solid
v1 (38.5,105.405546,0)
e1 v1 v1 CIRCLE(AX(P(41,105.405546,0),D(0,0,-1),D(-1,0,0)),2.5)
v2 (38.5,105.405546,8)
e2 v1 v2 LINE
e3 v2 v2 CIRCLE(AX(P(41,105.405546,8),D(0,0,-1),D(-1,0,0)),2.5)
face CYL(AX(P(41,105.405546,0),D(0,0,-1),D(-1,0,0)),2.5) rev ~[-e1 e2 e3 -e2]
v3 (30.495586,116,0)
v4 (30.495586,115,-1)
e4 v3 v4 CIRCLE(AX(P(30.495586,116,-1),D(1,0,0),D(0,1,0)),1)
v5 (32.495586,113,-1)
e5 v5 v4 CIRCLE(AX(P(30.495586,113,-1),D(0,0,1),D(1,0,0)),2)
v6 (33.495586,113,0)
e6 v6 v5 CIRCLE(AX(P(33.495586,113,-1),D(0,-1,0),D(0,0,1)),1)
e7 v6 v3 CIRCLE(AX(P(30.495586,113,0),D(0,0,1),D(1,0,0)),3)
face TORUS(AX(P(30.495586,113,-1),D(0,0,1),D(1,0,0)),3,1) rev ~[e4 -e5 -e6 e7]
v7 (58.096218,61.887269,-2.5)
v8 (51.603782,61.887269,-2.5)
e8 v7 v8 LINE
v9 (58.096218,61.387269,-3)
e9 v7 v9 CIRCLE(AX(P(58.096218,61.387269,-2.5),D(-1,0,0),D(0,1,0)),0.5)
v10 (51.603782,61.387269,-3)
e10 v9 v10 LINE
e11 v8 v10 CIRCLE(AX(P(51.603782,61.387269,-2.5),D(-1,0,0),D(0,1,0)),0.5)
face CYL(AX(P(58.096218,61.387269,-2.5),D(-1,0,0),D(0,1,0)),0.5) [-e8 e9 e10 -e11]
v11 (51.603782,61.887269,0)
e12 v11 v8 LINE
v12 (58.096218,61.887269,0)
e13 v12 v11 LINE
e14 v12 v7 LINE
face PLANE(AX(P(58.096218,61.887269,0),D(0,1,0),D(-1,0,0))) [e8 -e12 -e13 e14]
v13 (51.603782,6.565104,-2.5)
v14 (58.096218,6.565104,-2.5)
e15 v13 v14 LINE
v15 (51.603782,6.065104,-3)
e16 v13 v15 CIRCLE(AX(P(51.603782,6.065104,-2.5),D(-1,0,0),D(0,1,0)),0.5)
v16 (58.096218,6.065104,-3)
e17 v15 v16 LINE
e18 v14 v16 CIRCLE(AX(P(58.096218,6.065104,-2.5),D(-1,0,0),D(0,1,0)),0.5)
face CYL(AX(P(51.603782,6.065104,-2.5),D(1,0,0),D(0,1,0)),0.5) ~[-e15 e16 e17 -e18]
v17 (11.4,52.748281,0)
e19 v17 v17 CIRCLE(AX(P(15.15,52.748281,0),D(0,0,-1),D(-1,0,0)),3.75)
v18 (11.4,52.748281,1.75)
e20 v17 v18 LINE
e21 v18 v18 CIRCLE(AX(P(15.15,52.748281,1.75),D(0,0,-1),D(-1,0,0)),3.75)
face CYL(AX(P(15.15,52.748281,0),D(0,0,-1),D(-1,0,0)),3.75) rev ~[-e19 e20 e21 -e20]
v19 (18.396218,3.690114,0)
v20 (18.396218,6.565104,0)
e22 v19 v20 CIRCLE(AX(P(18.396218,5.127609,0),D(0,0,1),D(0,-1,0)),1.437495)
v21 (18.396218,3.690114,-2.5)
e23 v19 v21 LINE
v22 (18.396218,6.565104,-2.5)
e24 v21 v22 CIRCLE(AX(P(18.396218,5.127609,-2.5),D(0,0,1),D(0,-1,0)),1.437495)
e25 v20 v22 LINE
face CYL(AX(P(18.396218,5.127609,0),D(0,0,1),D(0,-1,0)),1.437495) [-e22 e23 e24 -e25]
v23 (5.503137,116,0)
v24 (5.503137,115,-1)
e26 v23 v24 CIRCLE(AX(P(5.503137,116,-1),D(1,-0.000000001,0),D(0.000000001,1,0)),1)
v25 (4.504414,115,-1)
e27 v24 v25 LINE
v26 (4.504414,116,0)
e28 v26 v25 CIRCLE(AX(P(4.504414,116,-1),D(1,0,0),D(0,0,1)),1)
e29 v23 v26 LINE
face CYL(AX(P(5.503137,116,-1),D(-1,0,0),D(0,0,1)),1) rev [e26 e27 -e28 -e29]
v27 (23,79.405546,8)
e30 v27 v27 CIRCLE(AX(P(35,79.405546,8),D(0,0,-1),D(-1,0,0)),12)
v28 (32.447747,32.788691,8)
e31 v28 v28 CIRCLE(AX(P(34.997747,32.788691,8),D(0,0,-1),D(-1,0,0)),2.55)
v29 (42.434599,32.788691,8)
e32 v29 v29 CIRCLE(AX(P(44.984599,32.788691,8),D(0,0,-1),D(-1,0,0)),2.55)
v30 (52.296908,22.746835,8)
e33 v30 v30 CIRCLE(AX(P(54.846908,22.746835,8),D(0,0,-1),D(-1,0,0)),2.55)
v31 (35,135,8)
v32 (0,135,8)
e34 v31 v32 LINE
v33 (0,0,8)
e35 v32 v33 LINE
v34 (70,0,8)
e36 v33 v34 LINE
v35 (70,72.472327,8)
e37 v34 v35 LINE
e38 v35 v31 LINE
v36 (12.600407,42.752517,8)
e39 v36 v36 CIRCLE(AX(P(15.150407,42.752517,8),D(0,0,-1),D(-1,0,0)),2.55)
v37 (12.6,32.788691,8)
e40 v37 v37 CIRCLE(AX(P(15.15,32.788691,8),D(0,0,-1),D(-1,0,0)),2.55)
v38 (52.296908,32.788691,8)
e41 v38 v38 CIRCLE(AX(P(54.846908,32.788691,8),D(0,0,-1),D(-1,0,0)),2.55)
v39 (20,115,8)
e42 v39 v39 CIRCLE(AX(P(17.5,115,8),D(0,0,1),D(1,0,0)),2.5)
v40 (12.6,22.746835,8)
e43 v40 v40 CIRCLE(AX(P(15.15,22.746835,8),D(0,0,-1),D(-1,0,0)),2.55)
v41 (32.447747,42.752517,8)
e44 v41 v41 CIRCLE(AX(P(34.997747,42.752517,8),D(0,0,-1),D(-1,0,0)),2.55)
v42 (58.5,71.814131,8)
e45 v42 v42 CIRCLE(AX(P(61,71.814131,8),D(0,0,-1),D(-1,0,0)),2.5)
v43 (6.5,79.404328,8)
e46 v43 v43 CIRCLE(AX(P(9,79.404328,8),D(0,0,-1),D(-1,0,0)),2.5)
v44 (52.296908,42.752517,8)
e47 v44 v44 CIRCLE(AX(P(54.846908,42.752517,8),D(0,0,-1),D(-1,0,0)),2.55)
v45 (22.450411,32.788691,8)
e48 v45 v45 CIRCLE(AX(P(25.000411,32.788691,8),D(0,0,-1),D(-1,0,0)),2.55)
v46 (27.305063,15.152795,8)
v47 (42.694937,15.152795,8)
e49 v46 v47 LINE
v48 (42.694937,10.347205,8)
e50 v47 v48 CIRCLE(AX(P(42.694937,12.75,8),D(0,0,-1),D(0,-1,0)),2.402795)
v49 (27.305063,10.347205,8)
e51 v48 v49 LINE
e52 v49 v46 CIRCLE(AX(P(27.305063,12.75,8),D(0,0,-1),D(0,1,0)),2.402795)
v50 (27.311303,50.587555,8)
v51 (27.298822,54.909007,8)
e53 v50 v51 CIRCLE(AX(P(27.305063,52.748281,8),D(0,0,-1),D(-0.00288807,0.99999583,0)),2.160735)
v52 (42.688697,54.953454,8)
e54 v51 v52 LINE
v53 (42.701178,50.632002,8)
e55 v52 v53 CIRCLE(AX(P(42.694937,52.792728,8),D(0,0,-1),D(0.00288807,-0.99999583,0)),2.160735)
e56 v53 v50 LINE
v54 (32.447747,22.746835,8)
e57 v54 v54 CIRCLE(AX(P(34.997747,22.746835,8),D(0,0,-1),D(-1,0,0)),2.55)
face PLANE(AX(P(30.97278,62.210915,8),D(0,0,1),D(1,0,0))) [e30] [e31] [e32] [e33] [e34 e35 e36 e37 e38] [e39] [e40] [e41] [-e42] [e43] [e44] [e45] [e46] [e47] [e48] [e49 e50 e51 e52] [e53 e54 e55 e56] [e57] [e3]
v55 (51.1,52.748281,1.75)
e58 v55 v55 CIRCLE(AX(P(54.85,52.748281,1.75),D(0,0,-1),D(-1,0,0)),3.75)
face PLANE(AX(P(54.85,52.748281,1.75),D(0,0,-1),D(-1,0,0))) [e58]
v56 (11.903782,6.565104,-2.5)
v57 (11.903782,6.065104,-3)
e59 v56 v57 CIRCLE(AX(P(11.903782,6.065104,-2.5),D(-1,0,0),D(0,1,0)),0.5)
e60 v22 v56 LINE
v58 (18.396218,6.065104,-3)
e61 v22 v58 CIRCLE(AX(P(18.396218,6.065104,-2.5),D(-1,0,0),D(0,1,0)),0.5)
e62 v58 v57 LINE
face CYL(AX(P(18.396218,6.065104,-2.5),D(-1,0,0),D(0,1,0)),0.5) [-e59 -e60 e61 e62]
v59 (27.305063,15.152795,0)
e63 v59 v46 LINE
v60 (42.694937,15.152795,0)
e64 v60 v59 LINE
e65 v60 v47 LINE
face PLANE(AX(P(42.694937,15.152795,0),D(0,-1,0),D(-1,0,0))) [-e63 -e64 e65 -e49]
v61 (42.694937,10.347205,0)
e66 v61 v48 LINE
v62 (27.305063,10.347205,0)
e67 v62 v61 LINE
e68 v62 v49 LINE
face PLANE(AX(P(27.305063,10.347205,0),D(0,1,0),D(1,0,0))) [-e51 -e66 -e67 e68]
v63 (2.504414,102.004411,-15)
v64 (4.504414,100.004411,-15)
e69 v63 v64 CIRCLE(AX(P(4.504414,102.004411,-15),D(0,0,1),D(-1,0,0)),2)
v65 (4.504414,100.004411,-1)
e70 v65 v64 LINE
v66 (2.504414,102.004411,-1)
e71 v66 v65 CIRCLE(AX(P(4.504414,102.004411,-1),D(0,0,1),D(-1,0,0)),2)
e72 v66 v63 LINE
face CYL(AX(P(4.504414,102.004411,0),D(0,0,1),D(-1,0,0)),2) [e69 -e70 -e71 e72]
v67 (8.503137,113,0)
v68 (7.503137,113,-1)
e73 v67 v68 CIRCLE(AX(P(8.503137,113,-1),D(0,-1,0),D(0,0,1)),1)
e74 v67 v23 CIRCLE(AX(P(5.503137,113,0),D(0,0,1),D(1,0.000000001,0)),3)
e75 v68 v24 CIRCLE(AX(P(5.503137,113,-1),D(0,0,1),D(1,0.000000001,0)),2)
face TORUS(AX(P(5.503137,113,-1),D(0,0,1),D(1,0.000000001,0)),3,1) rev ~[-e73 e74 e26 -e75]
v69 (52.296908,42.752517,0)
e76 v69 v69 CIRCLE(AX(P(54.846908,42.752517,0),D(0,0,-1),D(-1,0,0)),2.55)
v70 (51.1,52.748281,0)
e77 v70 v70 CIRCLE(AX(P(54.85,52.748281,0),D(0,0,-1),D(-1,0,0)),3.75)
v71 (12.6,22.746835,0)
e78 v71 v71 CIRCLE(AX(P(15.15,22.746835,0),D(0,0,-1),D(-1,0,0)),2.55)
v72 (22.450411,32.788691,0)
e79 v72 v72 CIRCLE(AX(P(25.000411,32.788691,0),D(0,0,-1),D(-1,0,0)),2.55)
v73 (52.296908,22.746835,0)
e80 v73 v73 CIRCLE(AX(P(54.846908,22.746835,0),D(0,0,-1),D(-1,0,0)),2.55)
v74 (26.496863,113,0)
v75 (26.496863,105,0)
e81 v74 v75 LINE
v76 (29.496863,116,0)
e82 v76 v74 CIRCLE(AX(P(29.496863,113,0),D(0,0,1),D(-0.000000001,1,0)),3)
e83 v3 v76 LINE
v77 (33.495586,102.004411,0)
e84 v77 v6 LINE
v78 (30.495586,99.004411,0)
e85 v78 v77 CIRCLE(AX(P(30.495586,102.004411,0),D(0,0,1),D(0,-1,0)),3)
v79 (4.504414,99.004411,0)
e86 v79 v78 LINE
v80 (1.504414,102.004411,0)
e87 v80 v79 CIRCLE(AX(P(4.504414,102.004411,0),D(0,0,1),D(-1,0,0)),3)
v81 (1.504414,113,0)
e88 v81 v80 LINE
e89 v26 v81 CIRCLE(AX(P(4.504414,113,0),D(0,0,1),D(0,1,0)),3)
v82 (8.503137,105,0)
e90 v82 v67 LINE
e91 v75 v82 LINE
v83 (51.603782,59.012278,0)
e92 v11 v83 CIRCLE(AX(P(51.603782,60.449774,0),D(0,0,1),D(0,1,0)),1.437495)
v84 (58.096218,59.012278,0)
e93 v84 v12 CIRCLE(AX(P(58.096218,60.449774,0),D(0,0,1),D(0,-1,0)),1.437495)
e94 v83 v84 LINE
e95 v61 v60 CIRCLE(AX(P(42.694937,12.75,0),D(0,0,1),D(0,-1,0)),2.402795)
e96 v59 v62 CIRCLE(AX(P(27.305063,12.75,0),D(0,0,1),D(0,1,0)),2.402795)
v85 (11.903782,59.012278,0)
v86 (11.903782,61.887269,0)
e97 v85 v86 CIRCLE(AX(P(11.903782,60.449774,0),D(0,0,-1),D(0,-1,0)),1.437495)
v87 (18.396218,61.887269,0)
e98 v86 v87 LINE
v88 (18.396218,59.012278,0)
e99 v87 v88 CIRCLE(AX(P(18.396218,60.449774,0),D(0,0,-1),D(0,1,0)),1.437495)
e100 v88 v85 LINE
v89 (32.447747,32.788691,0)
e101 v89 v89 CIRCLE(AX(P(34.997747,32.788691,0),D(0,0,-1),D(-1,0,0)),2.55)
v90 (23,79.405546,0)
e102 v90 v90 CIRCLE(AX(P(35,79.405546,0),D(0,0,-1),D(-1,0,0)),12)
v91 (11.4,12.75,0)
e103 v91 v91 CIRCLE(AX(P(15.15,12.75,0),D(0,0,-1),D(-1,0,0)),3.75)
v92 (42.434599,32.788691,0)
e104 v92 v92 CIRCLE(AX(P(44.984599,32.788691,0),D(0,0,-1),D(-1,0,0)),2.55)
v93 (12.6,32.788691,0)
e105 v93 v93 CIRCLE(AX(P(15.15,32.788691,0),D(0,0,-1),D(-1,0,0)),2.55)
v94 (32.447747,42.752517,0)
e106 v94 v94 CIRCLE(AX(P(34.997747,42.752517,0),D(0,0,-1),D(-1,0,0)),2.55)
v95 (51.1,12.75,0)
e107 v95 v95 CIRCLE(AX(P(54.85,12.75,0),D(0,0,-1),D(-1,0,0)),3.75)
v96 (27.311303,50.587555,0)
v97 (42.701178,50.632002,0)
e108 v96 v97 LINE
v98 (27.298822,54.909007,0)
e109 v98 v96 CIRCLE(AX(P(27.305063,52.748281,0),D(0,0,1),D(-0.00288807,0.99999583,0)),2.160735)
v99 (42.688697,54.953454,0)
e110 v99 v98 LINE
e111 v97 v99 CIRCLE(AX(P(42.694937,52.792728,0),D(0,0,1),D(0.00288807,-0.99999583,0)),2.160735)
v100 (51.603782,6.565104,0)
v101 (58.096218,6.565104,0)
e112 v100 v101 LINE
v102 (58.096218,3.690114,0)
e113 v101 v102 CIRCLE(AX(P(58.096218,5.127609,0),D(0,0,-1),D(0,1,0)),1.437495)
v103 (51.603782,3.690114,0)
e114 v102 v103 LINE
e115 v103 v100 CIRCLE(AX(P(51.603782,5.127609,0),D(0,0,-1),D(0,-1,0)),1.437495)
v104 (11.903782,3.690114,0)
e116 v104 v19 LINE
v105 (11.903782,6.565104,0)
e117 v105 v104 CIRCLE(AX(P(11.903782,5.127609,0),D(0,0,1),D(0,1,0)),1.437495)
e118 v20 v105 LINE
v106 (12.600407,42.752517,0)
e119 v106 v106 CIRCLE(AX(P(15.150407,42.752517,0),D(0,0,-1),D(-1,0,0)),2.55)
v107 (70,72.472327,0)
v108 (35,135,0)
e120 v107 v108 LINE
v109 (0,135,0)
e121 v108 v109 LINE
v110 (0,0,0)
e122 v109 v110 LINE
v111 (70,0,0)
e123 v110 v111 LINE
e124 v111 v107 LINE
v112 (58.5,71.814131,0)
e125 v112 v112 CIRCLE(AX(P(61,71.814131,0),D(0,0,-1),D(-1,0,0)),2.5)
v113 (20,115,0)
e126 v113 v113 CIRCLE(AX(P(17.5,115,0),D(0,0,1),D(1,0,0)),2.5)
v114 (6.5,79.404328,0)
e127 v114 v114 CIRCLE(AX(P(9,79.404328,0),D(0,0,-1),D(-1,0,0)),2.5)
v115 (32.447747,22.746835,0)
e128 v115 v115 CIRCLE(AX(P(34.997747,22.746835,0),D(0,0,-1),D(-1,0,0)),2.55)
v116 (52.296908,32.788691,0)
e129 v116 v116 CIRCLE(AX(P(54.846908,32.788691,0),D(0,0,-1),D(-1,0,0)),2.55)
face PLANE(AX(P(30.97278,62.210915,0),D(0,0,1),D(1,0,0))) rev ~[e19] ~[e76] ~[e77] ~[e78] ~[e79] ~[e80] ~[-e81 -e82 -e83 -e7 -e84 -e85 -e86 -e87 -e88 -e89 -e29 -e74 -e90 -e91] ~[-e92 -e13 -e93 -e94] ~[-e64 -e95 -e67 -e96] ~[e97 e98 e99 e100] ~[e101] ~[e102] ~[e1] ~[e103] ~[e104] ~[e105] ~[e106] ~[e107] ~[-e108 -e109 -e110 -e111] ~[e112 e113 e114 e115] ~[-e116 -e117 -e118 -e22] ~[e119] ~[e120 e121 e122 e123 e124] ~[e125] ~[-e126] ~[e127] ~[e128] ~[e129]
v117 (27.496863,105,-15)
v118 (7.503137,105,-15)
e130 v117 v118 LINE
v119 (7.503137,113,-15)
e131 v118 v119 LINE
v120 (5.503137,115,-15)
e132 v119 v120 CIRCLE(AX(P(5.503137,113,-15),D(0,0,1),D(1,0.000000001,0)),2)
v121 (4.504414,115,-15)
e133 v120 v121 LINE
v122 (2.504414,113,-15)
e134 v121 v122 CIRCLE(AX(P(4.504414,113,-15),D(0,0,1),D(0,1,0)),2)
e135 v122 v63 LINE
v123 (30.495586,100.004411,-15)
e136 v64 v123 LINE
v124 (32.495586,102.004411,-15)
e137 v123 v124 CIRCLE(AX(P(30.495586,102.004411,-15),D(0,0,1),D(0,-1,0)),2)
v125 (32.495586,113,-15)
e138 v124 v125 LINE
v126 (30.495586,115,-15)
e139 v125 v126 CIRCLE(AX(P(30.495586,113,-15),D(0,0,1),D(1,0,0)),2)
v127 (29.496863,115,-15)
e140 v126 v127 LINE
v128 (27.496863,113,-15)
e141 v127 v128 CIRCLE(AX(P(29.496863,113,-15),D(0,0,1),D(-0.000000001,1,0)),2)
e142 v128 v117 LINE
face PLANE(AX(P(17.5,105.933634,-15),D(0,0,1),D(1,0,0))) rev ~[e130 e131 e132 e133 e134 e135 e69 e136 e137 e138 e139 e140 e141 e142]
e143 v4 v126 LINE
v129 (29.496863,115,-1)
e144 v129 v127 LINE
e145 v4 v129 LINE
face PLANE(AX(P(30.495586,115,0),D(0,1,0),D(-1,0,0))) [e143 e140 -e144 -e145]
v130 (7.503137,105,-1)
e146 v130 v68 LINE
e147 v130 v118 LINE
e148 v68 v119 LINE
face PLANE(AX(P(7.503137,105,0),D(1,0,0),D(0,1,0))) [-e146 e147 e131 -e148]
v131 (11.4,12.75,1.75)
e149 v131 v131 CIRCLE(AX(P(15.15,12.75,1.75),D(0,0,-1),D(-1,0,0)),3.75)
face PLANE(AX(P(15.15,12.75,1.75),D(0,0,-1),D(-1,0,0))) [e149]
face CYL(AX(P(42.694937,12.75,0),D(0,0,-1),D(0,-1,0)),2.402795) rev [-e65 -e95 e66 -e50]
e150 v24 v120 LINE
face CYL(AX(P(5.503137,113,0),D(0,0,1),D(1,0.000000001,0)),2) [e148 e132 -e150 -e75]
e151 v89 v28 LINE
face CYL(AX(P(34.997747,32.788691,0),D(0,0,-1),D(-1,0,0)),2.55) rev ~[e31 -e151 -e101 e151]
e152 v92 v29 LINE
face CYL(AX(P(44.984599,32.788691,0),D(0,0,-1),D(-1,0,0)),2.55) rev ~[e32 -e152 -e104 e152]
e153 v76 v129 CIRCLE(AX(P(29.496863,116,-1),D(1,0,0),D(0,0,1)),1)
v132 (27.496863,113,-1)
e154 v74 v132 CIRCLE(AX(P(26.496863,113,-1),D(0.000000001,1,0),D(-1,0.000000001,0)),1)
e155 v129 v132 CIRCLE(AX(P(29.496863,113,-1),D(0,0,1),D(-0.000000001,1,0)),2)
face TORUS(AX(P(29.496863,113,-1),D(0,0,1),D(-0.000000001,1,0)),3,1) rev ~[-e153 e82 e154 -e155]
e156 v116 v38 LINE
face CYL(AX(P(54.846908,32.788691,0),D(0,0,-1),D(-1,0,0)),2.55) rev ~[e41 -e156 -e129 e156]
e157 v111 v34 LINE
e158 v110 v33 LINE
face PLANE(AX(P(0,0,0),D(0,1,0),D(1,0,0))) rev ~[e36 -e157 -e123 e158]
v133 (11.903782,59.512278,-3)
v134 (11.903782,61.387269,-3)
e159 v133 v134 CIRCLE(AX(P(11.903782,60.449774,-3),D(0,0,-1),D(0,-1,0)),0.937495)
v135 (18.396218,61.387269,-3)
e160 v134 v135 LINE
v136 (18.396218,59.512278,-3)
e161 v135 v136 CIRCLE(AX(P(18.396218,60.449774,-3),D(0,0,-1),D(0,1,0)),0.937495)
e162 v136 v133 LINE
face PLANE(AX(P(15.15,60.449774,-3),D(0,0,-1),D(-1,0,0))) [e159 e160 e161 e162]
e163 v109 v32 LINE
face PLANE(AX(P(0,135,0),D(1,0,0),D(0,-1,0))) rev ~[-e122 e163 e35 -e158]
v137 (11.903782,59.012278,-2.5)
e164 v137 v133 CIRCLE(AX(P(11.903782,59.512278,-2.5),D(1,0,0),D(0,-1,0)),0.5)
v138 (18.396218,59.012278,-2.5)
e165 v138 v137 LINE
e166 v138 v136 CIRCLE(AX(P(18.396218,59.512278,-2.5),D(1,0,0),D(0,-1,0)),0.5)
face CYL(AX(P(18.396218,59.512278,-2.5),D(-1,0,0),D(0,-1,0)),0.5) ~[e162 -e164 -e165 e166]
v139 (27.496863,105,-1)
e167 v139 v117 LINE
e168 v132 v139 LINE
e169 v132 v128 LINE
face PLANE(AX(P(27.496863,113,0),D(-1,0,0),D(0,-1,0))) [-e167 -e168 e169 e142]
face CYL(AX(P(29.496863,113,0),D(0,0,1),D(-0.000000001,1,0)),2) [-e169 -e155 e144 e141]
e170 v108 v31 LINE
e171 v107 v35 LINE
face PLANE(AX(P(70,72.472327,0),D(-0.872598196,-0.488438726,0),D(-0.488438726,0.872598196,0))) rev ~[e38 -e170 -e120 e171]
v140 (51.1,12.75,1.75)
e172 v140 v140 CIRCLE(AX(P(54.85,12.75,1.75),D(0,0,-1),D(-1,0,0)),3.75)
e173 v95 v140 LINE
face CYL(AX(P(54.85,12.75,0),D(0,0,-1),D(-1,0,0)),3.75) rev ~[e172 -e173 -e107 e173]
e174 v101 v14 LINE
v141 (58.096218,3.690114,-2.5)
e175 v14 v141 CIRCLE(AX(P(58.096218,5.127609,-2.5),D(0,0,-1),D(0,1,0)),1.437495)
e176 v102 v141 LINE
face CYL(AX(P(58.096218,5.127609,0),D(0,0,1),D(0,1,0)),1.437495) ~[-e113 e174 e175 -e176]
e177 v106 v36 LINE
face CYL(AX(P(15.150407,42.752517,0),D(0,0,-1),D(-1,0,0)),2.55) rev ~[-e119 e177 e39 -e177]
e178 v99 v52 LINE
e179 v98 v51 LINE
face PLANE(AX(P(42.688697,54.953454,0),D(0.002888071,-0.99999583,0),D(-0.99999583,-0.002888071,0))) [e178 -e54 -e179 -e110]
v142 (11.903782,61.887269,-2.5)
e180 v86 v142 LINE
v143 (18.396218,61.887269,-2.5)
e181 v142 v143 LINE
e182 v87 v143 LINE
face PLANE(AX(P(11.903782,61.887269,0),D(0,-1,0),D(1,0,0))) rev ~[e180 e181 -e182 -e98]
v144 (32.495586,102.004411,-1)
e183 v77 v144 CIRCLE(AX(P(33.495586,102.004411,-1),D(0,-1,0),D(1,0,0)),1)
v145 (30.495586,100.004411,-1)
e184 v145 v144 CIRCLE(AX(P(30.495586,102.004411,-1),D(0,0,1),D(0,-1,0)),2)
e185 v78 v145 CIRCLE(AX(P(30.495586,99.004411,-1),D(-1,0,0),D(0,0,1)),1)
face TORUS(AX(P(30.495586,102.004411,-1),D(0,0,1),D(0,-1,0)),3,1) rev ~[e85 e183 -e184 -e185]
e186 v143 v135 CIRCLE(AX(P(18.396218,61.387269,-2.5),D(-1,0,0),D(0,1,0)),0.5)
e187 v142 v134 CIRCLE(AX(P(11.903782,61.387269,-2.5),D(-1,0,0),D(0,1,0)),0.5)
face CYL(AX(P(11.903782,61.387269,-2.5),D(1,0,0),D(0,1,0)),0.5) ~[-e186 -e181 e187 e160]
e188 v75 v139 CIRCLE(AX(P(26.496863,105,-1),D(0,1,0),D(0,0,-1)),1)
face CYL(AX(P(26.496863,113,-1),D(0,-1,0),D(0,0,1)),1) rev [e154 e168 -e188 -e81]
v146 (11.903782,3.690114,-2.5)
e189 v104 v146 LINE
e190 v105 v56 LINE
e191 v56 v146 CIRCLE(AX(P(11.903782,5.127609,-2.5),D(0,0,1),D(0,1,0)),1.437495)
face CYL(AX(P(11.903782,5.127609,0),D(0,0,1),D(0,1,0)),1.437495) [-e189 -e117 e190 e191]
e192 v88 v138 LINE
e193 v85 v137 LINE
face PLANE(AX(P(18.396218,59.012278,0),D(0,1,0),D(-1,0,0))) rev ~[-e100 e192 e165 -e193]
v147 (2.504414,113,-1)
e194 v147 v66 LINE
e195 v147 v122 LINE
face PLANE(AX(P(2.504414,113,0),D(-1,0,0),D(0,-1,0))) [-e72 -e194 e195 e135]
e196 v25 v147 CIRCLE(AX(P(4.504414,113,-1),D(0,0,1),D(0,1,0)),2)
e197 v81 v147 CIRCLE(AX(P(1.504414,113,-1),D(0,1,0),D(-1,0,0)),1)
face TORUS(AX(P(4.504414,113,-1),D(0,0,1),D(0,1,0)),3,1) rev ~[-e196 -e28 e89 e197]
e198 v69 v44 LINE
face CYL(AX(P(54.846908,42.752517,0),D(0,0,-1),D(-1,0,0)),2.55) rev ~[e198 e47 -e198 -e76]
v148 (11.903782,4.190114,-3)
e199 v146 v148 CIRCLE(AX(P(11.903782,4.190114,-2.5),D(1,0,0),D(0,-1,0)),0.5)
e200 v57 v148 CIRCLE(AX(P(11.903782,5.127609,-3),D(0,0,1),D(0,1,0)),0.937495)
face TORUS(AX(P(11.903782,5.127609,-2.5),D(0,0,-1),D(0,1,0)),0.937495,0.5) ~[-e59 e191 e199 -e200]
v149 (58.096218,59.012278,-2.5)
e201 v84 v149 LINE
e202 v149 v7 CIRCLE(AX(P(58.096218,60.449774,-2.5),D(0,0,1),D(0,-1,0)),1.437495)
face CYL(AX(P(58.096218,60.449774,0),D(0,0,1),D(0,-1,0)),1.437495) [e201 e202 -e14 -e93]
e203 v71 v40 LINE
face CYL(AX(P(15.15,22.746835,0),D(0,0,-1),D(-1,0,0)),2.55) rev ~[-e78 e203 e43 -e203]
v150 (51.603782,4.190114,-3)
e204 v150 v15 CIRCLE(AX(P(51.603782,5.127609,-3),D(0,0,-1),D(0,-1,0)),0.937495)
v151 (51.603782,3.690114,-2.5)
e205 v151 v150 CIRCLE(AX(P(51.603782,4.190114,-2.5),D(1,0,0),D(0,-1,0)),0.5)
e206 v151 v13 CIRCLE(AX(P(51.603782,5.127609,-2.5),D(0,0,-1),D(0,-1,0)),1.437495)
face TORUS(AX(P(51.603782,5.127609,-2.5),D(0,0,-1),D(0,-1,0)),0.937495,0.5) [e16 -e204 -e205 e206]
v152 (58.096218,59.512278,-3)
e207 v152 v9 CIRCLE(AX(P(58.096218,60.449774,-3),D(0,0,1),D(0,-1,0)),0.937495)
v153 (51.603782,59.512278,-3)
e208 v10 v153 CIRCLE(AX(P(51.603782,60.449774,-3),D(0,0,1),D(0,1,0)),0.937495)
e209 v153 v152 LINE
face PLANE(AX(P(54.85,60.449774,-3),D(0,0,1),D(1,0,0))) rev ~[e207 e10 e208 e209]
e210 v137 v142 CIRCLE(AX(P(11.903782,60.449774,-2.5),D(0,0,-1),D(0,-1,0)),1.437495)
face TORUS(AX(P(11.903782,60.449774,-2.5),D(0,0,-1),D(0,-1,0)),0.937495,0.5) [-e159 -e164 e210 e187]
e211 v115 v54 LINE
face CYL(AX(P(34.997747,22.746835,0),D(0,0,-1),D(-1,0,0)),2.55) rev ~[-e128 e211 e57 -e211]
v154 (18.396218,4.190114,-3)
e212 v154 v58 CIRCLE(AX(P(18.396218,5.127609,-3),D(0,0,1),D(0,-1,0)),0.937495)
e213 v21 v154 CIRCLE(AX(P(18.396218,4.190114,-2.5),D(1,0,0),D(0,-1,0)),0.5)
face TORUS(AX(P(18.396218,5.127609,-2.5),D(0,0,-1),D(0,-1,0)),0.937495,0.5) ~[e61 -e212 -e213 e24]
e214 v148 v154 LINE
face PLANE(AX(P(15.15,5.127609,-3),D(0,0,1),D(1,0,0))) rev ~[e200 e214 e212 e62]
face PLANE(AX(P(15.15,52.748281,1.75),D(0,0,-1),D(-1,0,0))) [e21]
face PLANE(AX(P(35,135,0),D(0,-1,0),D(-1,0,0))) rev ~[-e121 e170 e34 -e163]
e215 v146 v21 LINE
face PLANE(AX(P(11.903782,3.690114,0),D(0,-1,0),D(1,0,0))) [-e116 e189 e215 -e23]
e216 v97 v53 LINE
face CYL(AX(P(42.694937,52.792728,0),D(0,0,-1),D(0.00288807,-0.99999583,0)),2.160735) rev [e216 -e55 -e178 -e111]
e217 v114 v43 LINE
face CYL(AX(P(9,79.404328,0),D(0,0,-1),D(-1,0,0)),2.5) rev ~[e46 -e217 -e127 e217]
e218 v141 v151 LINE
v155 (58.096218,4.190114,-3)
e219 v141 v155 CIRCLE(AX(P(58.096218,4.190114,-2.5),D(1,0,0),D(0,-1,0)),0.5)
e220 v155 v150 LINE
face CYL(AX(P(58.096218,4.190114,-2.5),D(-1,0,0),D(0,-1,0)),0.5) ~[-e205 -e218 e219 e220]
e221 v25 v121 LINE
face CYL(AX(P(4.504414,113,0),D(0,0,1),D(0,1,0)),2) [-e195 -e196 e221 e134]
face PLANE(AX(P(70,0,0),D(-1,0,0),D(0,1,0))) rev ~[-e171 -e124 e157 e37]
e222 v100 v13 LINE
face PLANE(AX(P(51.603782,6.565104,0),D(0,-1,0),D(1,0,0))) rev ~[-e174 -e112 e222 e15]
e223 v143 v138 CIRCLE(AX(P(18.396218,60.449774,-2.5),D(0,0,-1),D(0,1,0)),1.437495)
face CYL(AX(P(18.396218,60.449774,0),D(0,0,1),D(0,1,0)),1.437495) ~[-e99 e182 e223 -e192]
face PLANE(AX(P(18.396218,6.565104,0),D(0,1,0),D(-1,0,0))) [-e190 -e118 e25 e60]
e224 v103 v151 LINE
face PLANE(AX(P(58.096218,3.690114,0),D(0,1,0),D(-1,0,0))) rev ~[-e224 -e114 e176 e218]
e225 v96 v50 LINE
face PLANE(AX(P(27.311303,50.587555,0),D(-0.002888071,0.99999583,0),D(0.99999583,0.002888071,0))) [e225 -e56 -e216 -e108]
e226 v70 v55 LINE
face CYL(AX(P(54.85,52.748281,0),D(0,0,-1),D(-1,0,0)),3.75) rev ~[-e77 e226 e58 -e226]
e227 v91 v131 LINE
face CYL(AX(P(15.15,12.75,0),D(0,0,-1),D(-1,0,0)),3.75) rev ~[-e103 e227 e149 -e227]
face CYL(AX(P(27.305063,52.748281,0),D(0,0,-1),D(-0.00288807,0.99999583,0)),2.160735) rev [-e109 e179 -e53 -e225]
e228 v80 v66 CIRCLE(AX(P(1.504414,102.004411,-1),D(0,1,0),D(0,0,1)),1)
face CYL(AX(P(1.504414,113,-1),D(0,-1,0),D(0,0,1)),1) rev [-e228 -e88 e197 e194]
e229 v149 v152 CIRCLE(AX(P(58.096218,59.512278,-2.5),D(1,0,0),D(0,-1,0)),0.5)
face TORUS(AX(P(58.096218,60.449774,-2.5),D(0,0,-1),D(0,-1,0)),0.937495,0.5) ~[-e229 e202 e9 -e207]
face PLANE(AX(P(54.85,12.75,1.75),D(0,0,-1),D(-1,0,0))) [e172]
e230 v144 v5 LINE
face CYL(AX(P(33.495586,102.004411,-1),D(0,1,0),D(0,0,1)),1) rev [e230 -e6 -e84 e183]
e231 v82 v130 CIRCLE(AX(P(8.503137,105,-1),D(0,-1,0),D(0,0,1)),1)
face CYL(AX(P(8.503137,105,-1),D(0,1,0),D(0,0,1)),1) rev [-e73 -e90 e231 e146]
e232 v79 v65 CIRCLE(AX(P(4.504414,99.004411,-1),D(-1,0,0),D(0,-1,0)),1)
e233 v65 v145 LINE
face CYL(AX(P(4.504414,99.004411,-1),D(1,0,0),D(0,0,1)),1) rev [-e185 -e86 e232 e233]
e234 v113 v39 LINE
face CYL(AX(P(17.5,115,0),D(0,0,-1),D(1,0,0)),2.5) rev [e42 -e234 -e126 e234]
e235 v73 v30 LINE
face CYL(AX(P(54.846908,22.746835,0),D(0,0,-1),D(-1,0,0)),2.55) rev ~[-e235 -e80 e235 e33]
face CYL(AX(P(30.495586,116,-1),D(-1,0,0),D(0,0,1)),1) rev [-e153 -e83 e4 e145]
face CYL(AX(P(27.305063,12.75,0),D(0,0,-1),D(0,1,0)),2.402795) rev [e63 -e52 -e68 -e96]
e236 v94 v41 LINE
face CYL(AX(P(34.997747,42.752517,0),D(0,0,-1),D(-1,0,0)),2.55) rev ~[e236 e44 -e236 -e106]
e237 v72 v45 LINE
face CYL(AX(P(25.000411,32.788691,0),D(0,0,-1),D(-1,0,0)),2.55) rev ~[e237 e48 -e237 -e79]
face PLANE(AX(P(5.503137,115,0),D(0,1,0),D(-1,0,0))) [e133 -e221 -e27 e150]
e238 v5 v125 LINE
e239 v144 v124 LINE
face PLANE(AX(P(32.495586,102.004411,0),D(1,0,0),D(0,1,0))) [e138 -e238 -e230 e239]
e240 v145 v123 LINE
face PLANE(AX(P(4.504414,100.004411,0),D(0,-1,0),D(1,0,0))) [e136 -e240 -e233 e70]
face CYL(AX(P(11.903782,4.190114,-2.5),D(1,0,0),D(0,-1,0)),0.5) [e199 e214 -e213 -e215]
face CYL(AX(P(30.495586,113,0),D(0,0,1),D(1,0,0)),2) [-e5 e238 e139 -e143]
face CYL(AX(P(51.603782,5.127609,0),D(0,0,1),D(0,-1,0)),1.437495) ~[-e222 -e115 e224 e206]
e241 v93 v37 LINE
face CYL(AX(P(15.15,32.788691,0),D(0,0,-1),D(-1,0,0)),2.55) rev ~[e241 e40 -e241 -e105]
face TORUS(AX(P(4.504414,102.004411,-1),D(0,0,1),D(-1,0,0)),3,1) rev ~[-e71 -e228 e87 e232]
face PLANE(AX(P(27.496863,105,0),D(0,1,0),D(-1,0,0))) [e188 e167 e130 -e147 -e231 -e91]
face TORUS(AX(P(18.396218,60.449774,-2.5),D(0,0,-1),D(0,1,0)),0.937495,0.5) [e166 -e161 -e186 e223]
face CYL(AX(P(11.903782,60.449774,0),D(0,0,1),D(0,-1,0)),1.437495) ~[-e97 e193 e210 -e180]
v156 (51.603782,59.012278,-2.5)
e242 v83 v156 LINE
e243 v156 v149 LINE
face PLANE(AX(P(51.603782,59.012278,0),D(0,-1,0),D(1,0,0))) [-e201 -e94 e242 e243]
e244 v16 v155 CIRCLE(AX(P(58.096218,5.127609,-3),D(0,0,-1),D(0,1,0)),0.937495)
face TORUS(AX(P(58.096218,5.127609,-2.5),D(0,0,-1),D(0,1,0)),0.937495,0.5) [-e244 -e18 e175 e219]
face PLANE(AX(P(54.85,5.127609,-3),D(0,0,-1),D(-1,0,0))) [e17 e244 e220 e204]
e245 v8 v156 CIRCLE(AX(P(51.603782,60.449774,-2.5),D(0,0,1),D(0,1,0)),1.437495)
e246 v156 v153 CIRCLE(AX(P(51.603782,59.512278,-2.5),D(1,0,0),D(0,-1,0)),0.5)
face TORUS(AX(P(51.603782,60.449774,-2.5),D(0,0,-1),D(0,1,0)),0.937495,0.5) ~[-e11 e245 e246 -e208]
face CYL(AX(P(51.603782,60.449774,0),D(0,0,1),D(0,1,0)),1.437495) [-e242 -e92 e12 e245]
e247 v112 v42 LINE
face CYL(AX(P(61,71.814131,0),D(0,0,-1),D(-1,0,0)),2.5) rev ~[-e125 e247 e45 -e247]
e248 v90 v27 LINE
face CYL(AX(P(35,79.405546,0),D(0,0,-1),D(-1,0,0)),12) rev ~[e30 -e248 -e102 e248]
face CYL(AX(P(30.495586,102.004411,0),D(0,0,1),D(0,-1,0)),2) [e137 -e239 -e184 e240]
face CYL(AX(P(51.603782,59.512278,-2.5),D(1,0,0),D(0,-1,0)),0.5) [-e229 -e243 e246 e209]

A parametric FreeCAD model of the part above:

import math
import FreeCAD as App
import Part
import Sketcher

V = App.Vector


def edges_at(feature, points):
    """Names of the edges that pass closest to the given points."""
    edges = feature.Shape.Edges
    near = lambda p: min(range(len(edges)), key=lambda i: edges[i].distToShape(Part.Vertex(*p))[0])
    return sorted({f"Edge{near(p) + 1}" for p in points})

doc = App.newDocument("Part")
params = doc.addObject("Spreadsheet::Sheet", "Params")
for row, (alias, value) in enumerate([
    ("sketch1_diameter", "5 mm"),
    ("sketch1_width", "70 mm"),
    ("sketch1_width2", "35 mm"),
    ("sketch1_height", "135 mm"),
    ("pad1_length", "8 mm"),
    ("sketch2_radius", "2 mm"),
    ("sketch2_height", "8 mm"),
    ("pad2_length", "15 mm"),
    ("fillet_radius", "1 mm"),
    ("sketch3_diameter", "7.5 mm"),
    ("pocket1_length", "1.75 mm"),
    ("sketch4_diameter", "5.1 mm"),
    ("pad3_length", "3 mm"),
    ("fillet2_radius", "0.5 mm"),
    ("sketch7_diameter", "24 mm"),
    ("sketch8_diameter", "5 mm"),
], start=1):
    params.set(f"A{row}", alias)
    params.set(f"B{row}", "=" + value)
    params.setAlias(f"B{row}", alias)

body = doc.addObject("PartDesign::Body", "Body")

# Sketch on XY plane
sketch1 = doc.addObject("Sketcher::SketchObject", "Sketch")
body.addObject(sketch1)
sketch1.AttachmentSupport = (doc.XY_Plane, [""])
sketch1.MapMode = "FlatFace"
sketch1.addGeometry([
    Part.LineSegment(V(0, 0, 0), V(70, 0, 0)),  # 0
    Part.LineSegment(V(70, 0, 0), V(70, 72.472327, 0)),  # 1
    Part.LineSegment(V(70, 72.472327, 0), V(35, 135, 0)),  # 2
    Part.LineSegment(V(35, 135, 0), V(0, 135, 0)),  # 3
    Part.LineSegment(V(0, 135, 0), V(0, 0, 0)),  # 4
    Part.Circle(V(17.5, 115, 0), V(0, 0, 1), 2.5),  # 5
], False)
sketch1.addConstraint([
    Sketcher.Constraint("Coincident", 0, 2, 1, 1),
    Sketcher.Constraint("Coincident", 1, 2, 2, 1),
    Sketcher.Constraint("Coincident", 2, 2, 3, 1),
    Sketcher.Constraint("Coincident", 3, 2, 4, 1),
    Sketcher.Constraint("Coincident", 4, 2, 0, 1),
    Sketcher.Constraint("Horizontal", 0),
    Sketcher.Constraint("Vertical", 1),
    Sketcher.Constraint("Horizontal", 3),
    Sketcher.Constraint("Vertical", 4),
    Sketcher.Constraint("Coincident", 4, 2, -1, 1),
    Sketcher.Constraint("Diameter", 5, 5.0),
    Sketcher.Constraint("DistanceX", 0, 1, 0, 2, 70.0),
    Sketcher.Constraint("DistanceX", 3, 2, 3, 1, 35.0),
    Sketcher.Constraint("DistanceY", 4, 2, 4, 1, 135.0),
    Sketcher.Constraint("DistanceY", -1, 1, 5, 3, 115.0),
    Sketcher.Constraint("DistanceX", -1, 1, 5, 3, 17.5),
    Sketcher.Constraint("Distance", 2, 71.65689),
])
sketch1.setExpression("Constraints[10]", "Params.sketch1_diameter")
sketch1.setExpression("Constraints[11]", "Params.sketch1_width")
sketch1.setExpression("Constraints[12]", "Params.sketch1_width2")
sketch1.setExpression("Constraints[13]", "Params.sketch1_height")
pad1 = doc.addObject("PartDesign::Pad", "Pad")
body.addObject(pad1)
pad1.Profile = sketch1
pad1.setExpression("Length", "Params.pad1_length")

# Sketch on XY plane
sketch2 = doc.addObject("Sketcher::SketchObject", "Sketch001")
body.addObject(sketch2)
sketch2.AttachmentSupport = (doc.XY_Plane, [""])
sketch2.MapMode = "FlatFace"
sketch2.addGeometry([
    Part.LineSegment(V(7.503137, 105, 0), V(27.496863, 105, 0)),  # 0
    Part.LineSegment(V(27.496863, 105, 0), V(27.496863, 113, 0)),  # 1
    Part.ArcOfCircle(Part.Circle(V(29.496863, 113, 0), V(0, 0, 1), 2), math.radians(90), math.radians(180)),  # 2
    Part.LineSegment(V(29.496863, 115, 0), V(30.495586, 115, 0)),  # 3
    Part.ArcOfCircle(Part.Circle(V(30.495586, 113, 0), V(0, 0, 1), 2), math.radians(0), math.radians(90)),  # 4
    Part.LineSegment(V(32.495586, 113, 0), V(32.495586, 102.004411, 0)),  # 5
    Part.ArcOfCircle(Part.Circle(V(30.495586, 102.004411, 0), V(0, 0, 1), 2), math.radians(-90), math.radians(0)),  # 6
    Part.LineSegment(V(30.495586, 100.004411, 0), V(4.504414, 100.004411, 0)),  # 7
    Part.ArcOfCircle(Part.Circle(V(4.504414, 102.004411, 0), V(0, 0, 1), 2), math.radians(180), math.radians(270)),  # 8
    Part.LineSegment(V(2.504414, 102.004411, 0), V(2.504414, 113, 0)),  # 9
    Part.ArcOfCircle(Part.Circle(V(4.504414, 113, 0), V(0, 0, 1), 2), math.radians(90), math.radians(180)),  # 10
    Part.LineSegment(V(4.504414, 115, 0), V(5.503137, 115, 0)),  # 11
    Part.ArcOfCircle(Part.Circle(V(5.503137, 113, 0), V(0, 0, 1), 2), math.radians(0), math.radians(90)),  # 12
    Part.LineSegment(V(7.503137, 113, 0), V(7.503137, 105, 0)),  # 13
], False)
sketch2.addConstraint([
    Sketcher.Constraint("Coincident", 0, 2, 1, 1),
    Sketcher.Constraint("Tangent", 1, 2, 2, 2),
    Sketcher.Constraint("Tangent", 2, 1, 3, 1),
    Sketcher.Constraint("Tangent", 3, 2, 4, 2),
    Sketcher.Constraint("Tangent", 4, 1, 5, 1),
    Sketcher.Constraint("Tangent", 5, 2, 6, 2),
    Sketcher.Constraint("Tangent", 6, 1, 7, 1),
    Sketcher.Constraint("Tangent", 7, 2, 8, 2),
    Sketcher.Constraint("Tangent", 8, 1, 9, 1),
    Sketcher.Constraint("Tangent", 9, 2, 10, 2),
    Sketcher.Constraint("Tangent", 10, 1, 11, 1),
    Sketcher.Constraint("Tangent", 11, 2, 12, 2),
    Sketcher.Constraint("Tangent", 12, 1, 13, 1),
    Sketcher.Constraint("Coincident", 13, 2, 0, 1),
    Sketcher.Constraint("Horizontal", 0),
    Sketcher.Constraint("Vertical", 1),
    Sketcher.Constraint("Horizontal", 3),
    Sketcher.Constraint("Vertical", 5),
    Sketcher.Constraint("Horizontal", 7),
    Sketcher.Constraint("Vertical", 9),
    Sketcher.Constraint("Horizontal", 11),
    Sketcher.Constraint("Vertical", 13),
    Sketcher.Constraint("Equal", 2, 4),
    Sketcher.Constraint("Equal", 4, 6),
    Sketcher.Constraint("Equal", 6, 8),
    Sketcher.Constraint("Equal", 8, 10),
    Sketcher.Constraint("Equal", 10, 12),
    Sketcher.Constraint("Horizontal", 4, 3, 10, 3),
    Sketcher.Constraint("Equal", 3, 11),
    Sketcher.Constraint("Radius", 2, 2.0),
    Sketcher.Constraint("DistanceY", 1, 1, 1, 2, 8.0),
    Sketcher.Constraint("DistanceY", -1, 1, 2, 3, 113.0),
    Sketcher.Constraint("DistanceX", 7, 2, 7, 1, 25.991172),
    Sketcher.Constraint("DistanceY", 5, 2, 5, 1, 10.995589),
    Sketcher.Constraint("DistanceX", 0, 1, 0, 2, 19.993726),
    Sketcher.Constraint("DistanceX", -1, 1, 2, 3, 29.496863),
])
sketch2.setExpression("Constraints[29]", "Params.sketch2_radius")
sketch2.setExpression("Constraints[30]", "Params.sketch2_height")
pad2 = doc.addObject("PartDesign::Pad", "Pad001")
body.addObject(pad2)
pad2.Profile = sketch2
pad2.setExpression("Length", "Params.pad2_length")
pad2.Reversed = True
doc.recompute()

fillet = doc.addObject("PartDesign::Fillet", "Fillet")
body.addObject(fillet)
fillet.Base = (pad2, edges_at(pad2, [
    (7.503, 109, 0),
    (27.497, 109, 0),
    (28.083, 114.414, 0),
    (29.996, 115, 0),
    (31.91, 114.414, 0),
    (32.496, 107.502, 0),
    (31.91, 100.59, 0),
    (17.5, 100.004, 0),
    (3.09, 100.59, 0),
    (2.504, 107.502, 0),
    (3.09, 114.414, 0),
    (5.004, 115, 0),
    (6.917, 114.414, 0),
]))
fillet.setExpression("Radius", "Params.fillet_radius")

# Sketch on XY plane
sketch3 = doc.addObject("Sketcher::SketchObject", "Sketch002")
body.addObject(sketch3)
sketch3.AttachmentSupport = (doc.XY_Plane, [""])
sketch3.MapMode = "FlatFace"
sketch3.addGeometry([
    Part.Circle(V(54.85, 52.748281, 0), V(0, 0, 1), 3.75),
    Part.Circle(V(15.15, 52.748281, 0), V(0, 0, 1), 3.75),
    Part.Circle(V(54.85, 12.75, 0), V(0, 0, 1), 3.75),
    Part.Circle(V(15.15, 12.75, 0), V(0, 0, 1), 3.75),
], False)
sketch3.addConstraint([
    Sketcher.Constraint("Equal", 0, 1),
    Sketcher.Constraint("Equal", 1, 2),
    Sketcher.Constraint("Equal", 2, 3),
    Sketcher.Constraint("Horizontal", 0, 3, 1, 3),
    Sketcher.Constraint("Horizontal", 2, 3, 3, 3),
    Sketcher.Constraint("Vertical", 0, 3, 2, 3),
    Sketcher.Constraint("Vertical", 1, 3, 3, 3),
    Sketcher.Constraint("Diameter", 0, 7.5),
    Sketcher.Constraint("DistanceX", 1, 3, 0, 3, 39.7),
    Sketcher.Constraint("DistanceX", -1, 1, 0, 3, 54.85),
    Sketcher.Constraint("DistanceY", -1, 1, 2, 3, 12.75),
    Sketcher.Constraint("DistanceY", -1, 1, 0, 3, 52.748281),
])
sketch3.setExpression("Constraints[7]", "Params.sketch3_diameter")
pocket1 = doc.addObject("PartDesign::Pocket", "Pocket")
body.addObject(pocket1)
pocket1.Profile = sketch3
pocket1.setExpression("Length", "Params.pocket1_length")
pocket1.Reversed = True

# Sketch on XY plane
sketch4 = doc.addObject("Sketcher::SketchObject", "Sketch003")
body.addObject(sketch4)
sketch4.AttachmentSupport = (doc.XY_Plane, [""])
sketch4.MapMode = "FlatFace"
sketch4.addGeometry([
    Part.Circle(V(54.846908, 42.752517, 0), V(0, 0, 1), 2.55),  # 0
    Part.Circle(V(34.997747, 42.752517, 0), V(0, 0, 1), 2.55),  # 1
    Part.Circle(V(54.846908, 32.788691, 0), V(0, 0, 1), 2.55),  # 2
    Part.Circle(V(44.984599, 32.788691, 0), V(0, 0, 1), 2.55),  # 3
    Part.Circle(V(34.997747, 32.788691, 0), V(0, 0, 1), 2.55),  # 4
    Part.Circle(V(25.000411, 32.788691, 0), V(0, 0, 1), 2.55),  # 5
    Part.Circle(V(15.150407, 42.752517, 0), V(0, 0, 1), 2.55),  # 6
    Part.Circle(V(15.15, 32.788691, 0), V(0, 0, 1), 2.55),  # 7
    Part.Circle(V(15.15, 22.746835, 0), V(0, 0, 1), 2.55),  # 8
    Part.Circle(V(34.997747, 22.746835, 0), V(0, 0, 1), 2.55),  # 9
    Part.Circle(V(54.846908, 22.746835, 0), V(0, 0, 1), 2.55),  # 10
], False)
sketch4.addConstraint([
    Sketcher.Constraint("Equal", 0, 1),
    Sketcher.Constraint("Equal", 1, 2),
    Sketcher.Constraint("Equal", 2, 3),
    Sketcher.Constraint("Equal", 3, 4),
    Sketcher.Constraint("Equal", 4, 5),
    Sketcher.Constraint("Equal", 5, 6),
    Sketcher.Constraint("Equal", 6, 7),
    Sketcher.Constraint("Equal", 7, 8),
    Sketcher.Constraint("Equal", 8, 9),
    Sketcher.Constraint("Equal", 9, 10),
    Sketcher.Constraint("Horizontal", 0, 3, 1, 3),
    Sketcher.Constraint("Horizontal", 2, 3, 3, 3),
    Sketcher.Constraint("Horizontal", 3, 3, 4, 3),
    Sketcher.Constraint("Horizontal", 4, 3, 5, 3),
    Sketcher.Constraint("Horizontal", 1, 3, 6, 3),
    Sketcher.Constraint("Horizontal", 5, 3, 7, 3),
    Sketcher.Constraint("Horizontal", 8, 3, 9, 3),
    Sketcher.Constraint("Horizontal", 9, 3, 10, 3),
    Sketcher.Constraint("Vertical", 0, 3, 2, 3),
    Sketcher.Constraint("Vertical", 1, 3, 4, 3),
    Sketcher.Constraint("Vertical", 7, 3, 8, 3),
    Sketcher.Constraint("Vertical", 4, 3, 9, 3),
    Sketcher.Constraint("Vertical", 2, 3, 10, 3),
    Sketcher.Constraint("Diameter", 0, 5.1),
    Sketcher.Constraint("DistanceX", -1, 1, 7, 3, 15.15),
    Sketcher.Constraint("DistanceX", -1, 1, 3, 3, 44.984599),
    Sketcher.Constraint("DistanceX", 6, 3, 0, 3, 39.696501),
    Sketcher.Constraint("DistanceX", -1, 1, 0, 3, 54.846908),
    Sketcher.Constraint("DistanceY", -1, 1, 2, 3, 32.788691),
    Sketcher.Constraint("DistanceX", -1, 1, 5, 3, 25.000411),
    Sketcher.Constraint("DistanceX", 1, 3, 0, 3, 19.849161),
    Sketcher.Constraint("DistanceY", 8, 3, 6, 3, 20.005682),
    Sketcher.Constraint("DistanceY", -1, 1, 0, 3, 42.752517),
])
sketch4.setExpression("Constraints[23]", "Params.sketch4_diameter")
pocket2 = doc.addObject("PartDesign::Pocket", "Pocket001")
body.addObject(pocket2)
pocket2.Profile = sketch4
pocket2.Type = "ThroughAll"
pocket2.Reversed = True

# Sketch on XY plane
sketch5 = doc.addObject("Sketcher::SketchObject", "Sketch004")
body.addObject(sketch5)
sketch5.AttachmentSupport = (doc.XY_Plane, [""])
sketch5.MapMode = "FlatFace"
sketch5.addGeometry([
    Part.LineSegment(V(27.298822, 54.909007, 0), V(42.688697, 54.953454, 0)),  # 0
    Part.ArcOfCircle(Part.Circle(V(42.694937, 52.792728, 0), V(0, 0, 1), 2.160735), math.radians(-89.834526), math.radians(90.165475)),  # 1
    Part.LineSegment(V(42.701178, 50.632002, 0), V(27.311303, 50.587555, 0)),  # 2
    Part.ArcOfCircle(Part.Circle(V(27.305063, 52.748281, 0), V(0, 0, 1), 2.160735), math.radians(90.165474), math.radians(270.165475)),  # 3
    Part.LineSegment(V(27.305063, 15.152795, 0), V(42.694937, 15.152795, 0)),  # 4
    Part.ArcOfCircle(Part.Circle(V(42.694937, 12.75, 0), V(0, 0, 1), 2.402795), math.radians(-90), math.radians(90)),  # 5
    Part.LineSegment(V(42.694937, 10.347205, 0), V(27.305063, 10.347205, 0)),  # 6
    Part.ArcOfCircle(Part.Circle(V(27.305063, 12.75, 0), V(0, 0, 1), 2.402795), math.radians(90), math.radians(270)),  # 7
], False)
sketch5.addConstraint([
    Sketcher.Constraint("Tangent", 0, 2, 1, 2),
    Sketcher.Constraint("Tangent", 1, 1, 2, 1),
    Sketcher.Constraint("Tangent", 2, 2, 3, 2),
    Sketcher.Constraint("Tangent", 3, 1, 0, 1),
    Sketcher.Constraint("Tangent", 4, 2, 5, 2),
    Sketcher.Constraint("Tangent", 5, 1, 6, 1),
    Sketcher.Constraint("Tangent", 6, 2, 7, 2),
    Sketcher.Constraint("Tangent", 7, 1, 4, 1),
    Sketcher.Constraint("Horizontal", 4),
    Sketcher.Constraint("Horizontal", 6),
    Sketcher.Constraint("Equal", 1, 3),
    Sketcher.Constraint("Vertical", 1, 3, 5, 3),
    Sketcher.Constraint("Vertical", 3, 3, 7, 3),
    Sketcher.Constraint("DistanceY", -1, 1, 5, 3, 12.75),
    Sketcher.Constraint("Radius", 1, 2.160735),
    Sketcher.Constraint("Radius", 5, 2.402795),
    Sketcher.Constraint("DistanceY", 2, 2, 0, 2, 4.365899),
    Sketcher.Constraint("Distance", 0, 15.389939),
    Sketcher.Constraint("DistanceY", -1, 1, 1, 3, 52.792728),
    Sketcher.Constraint("DistanceX", -1, 1, 1, 3, 42.694937),
])
pocket3 = doc.addObject("PartDesign::Pocket", "Pocket002")
body.addObject(pocket3)
pocket3.Profile = sketch5
pocket3.Type = "ThroughAll"
pocket3.Reversed = True

# Sketch on XY plane
sketch6 = doc.addObject("Sketcher::SketchObject", "Sketch005")
body.addObject(sketch6)
sketch6.AttachmentSupport = (doc.XY_Plane, [""])
sketch6.MapMode = "FlatFace"
sketch6.addGeometry([
    Part.LineSegment(V(51.603782, 61.887269, 0), V(58.096218, 61.887269, 0)),  # 0
    Part.ArcOfCircle(Part.Circle(V(58.096218, 60.449774, 0), V(0, 0, 1), 1.437495), math.radians(-90), math.radians(90)),  # 1
    Part.LineSegment(V(58.096218, 59.012278, 0), V(51.603782, 59.012278, 0)),  # 2
    Part.ArcOfCircle(Part.Circle(V(51.603782, 60.449774, 0), V(0, 0, 1), 1.437495), math.radians(90), math.radians(270)),  # 3
    Part.LineSegment(V(11.903782, 61.887269, 0), V(18.396218, 61.887269, 0)),  # 4
    Part.ArcOfCircle(Part.Circle(V(18.396218, 60.449774, 0), V(0, 0, 1), 1.437495), math.radians(-90), math.radians(90)),  # 5
    Part.LineSegment(V(18.396218, 59.012278, 0), V(11.903782, 59.012278, 0)),  # 6
    Part.ArcOfCircle(Part.Circle(V(11.903782, 60.449774, 0), V(0, 0, 1), 1.437495), math.radians(90), math.radians(270)),  # 7
    Part.LineSegment(V(58.096218, 3.690114, 0), V(51.603782, 3.690114, 0)),  # 8
    Part.ArcOfCircle(Part.Circle(V(51.603782, 5.127609, 0), V(0, 0, 1), 1.437495), math.radians(90), math.radians(270)),  # 9
    Part.LineSegment(V(51.603782, 6.565104, 0), V(58.096218, 6.565104, 0)),  # 10
    Part.ArcOfCircle(Part.Circle(V(58.096218, 5.127609, 0), V(0, 0, 1), 1.437495), math.radians(-90), math.radians(90)),  # 11
    Part.LineSegment(V(18.396218, 3.690114, 0), V(11.903782, 3.690114, 0)),  # 12
    Part.ArcOfCircle(Part.Circle(V(11.903782, 5.127609, 0), V(0, 0, 1), 1.437495), math.radians(90), math.radians(270)),  # 13
    Part.LineSegment(V(11.903782, 6.565104, 0), V(18.396218, 6.565104, 0)),  # 14
    Part.ArcOfCircle(Part.Circle(V(18.396218, 5.127609, 0), V(0, 0, 1), 1.437495), math.radians(-90), math.radians(90)),  # 15
], False)
sketch6.addConstraint([
    Sketcher.Constraint("Tangent", 0, 2, 1, 2),
    Sketcher.Constraint("Tangent", 1, 1, 2, 1),
    Sketcher.Constraint("Tangent", 2, 2, 3, 2),
    Sketcher.Constraint("Tangent", 3, 1, 0, 1),
    Sketcher.Constraint("Tangent", 4, 2, 5, 2),
    Sketcher.Constraint("Tangent", 5, 1, 6, 1),
    Sketcher.Constraint("Tangent", 6, 2, 7, 2),
    Sketcher.Constraint("Tangent", 7, 1, 4, 1),
    Sketcher.Constraint("Tangent", 8, 2, 9, 2),
    Sketcher.Constraint("Tangent", 9, 1, 10, 1),
    Sketcher.Constraint("Tangent", 10, 2, 11, 2),
    Sketcher.Constraint("Tangent", 11, 1, 8, 1),
    Sketcher.Constraint("Tangent", 12, 2, 13, 2),
    Sketcher.Constraint("Tangent", 13, 1, 14, 1),
    Sketcher.Constraint("Tangent", 14, 2, 15, 2),
    Sketcher.Constraint("Tangent", 15, 1, 12, 1),
    Sketcher.Constraint("Horizontal", 0),
    Sketcher.Constraint("Horizontal", 2),
    Sketcher.Constraint("Horizontal", 4),
    Sketcher.Constraint("Horizontal", 6),
    Sketcher.Constraint("Horizontal", 8),
    Sketcher.Constraint("Horizontal", 10),
    Sketcher.Constraint("Horizontal", 12),
    Sketcher.Constraint("Horizontal", 14),
    Sketcher.Constraint("Equal", 3, 5),
    Sketcher.Constraint("Equal", 7, 9),
    Sketcher.Constraint("Equal", 11, 13),
    Sketcher.Constraint("Horizontal", 3, 3, 5, 3),
    Sketcher.Constraint("Horizontal", 11, 3, 13, 3),
    Sketcher.Constraint("Vertical", 3, 3, 9, 3),
    Sketcher.Constraint("Vertical", 1, 3, 11, 3),
    Sketcher.Constraint("Vertical", 7, 3, 13, 3),
    Sketcher.Constraint("Vertical", 5, 3, 15, 3),
    Sketcher.Constraint("Equal", 2, 4),
    Sketcher.Constraint("DistanceX", 5, 3, 1, 3, 39.7),
    Sketcher.Constraint("Radius", 1, 1.437495),
    Sketcher.Constraint("DistanceX", 0, 1, 0, 2, 6.492437),
    Sketcher.Constraint("DistanceX", -1, 1, 1, 3, 58.096218),
    Sketcher.Constraint("DistanceY", -1, 1, 9, 3, 5.127609),
    Sketcher.Constraint("DistanceY", -1, 1, 0, 2, 61.887269),
])
pad3 = doc.addObject("PartDesign::Pad", "Pad002")
body.addObject(pad3)
pad3.Profile = sketch6
pad3.setExpression("Length", "Params.pad3_length")
pad3.Reversed = True
doc.recompute()

fillet2 = doc.addObject("PartDesign::Fillet", "Fillet001")
body.addObject(fillet2)
fillet2.Base = (pad3, edges_at(pad3, [
    (59.534, 60.45, -3),
    (54.85, 59.012, -3),
    (50.166, 60.45, -3),
    (54.85, 61.887, -3),
    (10.466, 60.45, -3),
    (15.15, 61.887, -3),
    (19.834, 60.45, -3),
    (15.15, 59.012, -3),
    (59.534, 5.128, -3),
    (54.85, 3.69, -3),
    (50.166, 5.128, -3),
    (54.85, 6.565, -3),
    (10.466, 5.128, -3),
    (15.15, 6.565, -3),
    (19.834, 5.128, -3),
    (15.15, 3.69, -3),
]))
fillet2.setExpression("Radius", "Params.fillet2_radius")

# Sketch on XY plane
sketch7 = doc.addObject("Sketcher::SketchObject", "Sketch006")
body.addObject(sketch7)
sketch7.AttachmentSupport = (doc.XY_Plane, [""])
sketch7.MapMode = "FlatFace"
sketch7.addGeometry(Part.Circle(V(35, 79.405546, 0), V(0, 0, 1), 12), False)
sketch7.addConstraint([
    Sketcher.Constraint("Diameter", 0, 24.0),
    Sketcher.Constraint("DistanceX", -1, 1, 0, 3, 35.0),
    Sketcher.Constraint("DistanceY", -1, 1, 0, 3, 79.405546),
])
sketch7.setExpression("Constraints[0]", "Params.sketch7_diameter")
pocket4 = doc.addObject("PartDesign::Pocket", "Pocket003")
body.addObject(pocket4)
pocket4.Profile = sketch7
pocket4.Type = "ThroughAll"
pocket4.Reversed = True

# Sketch on XY plane
sketch8 = doc.addObject("Sketcher::SketchObject", "Sketch007")
body.addObject(sketch8)
sketch8.AttachmentSupport = (doc.XY_Plane, [""])
sketch8.MapMode = "FlatFace"
sketch8.addGeometry([
    Part.Circle(V(61, 71.814131, 0), V(0, 0, 1), 2.5),
    Part.Circle(V(9, 79.404328, 0), V(0, 0, 1), 2.5),
    Part.Circle(V(41, 105.405546, 0), V(0, 0, 1), 2.5),
], False)
sketch8.addConstraint([
    Sketcher.Constraint("Equal", 0, 1),
    Sketcher.Constraint("Equal", 1, 2),
    Sketcher.Constraint("Diameter", 0, 5.0),
    Sketcher.Constraint("DistanceX", -1, 1, 0, 3, 61.0),
    Sketcher.Constraint("DistanceX", -1, 1, 1, 3, 9.0),
    Sketcher.Constraint("DistanceX", -1, 1, 2, 3, 41.0),
    Sketcher.Constraint("DistanceY", -1, 1, 0, 3, 71.814131),
    Sketcher.Constraint("DistanceY", -1, 1, 1, 3, 79.404328),
    Sketcher.Constraint("DistanceY", -1, 1, 2, 3, 105.405546),
])
sketch8.setExpression("Constraints[2]", "Params.sketch8_diameter")
pocket5 = doc.addObject("PartDesign::Pocket", "Pocket004")
body.addObject(pocket5)
pocket5.Profile = sketch8
pocket5.Type = "ThroughAll"
pocket5.Reversed = True

doc.recompute()
